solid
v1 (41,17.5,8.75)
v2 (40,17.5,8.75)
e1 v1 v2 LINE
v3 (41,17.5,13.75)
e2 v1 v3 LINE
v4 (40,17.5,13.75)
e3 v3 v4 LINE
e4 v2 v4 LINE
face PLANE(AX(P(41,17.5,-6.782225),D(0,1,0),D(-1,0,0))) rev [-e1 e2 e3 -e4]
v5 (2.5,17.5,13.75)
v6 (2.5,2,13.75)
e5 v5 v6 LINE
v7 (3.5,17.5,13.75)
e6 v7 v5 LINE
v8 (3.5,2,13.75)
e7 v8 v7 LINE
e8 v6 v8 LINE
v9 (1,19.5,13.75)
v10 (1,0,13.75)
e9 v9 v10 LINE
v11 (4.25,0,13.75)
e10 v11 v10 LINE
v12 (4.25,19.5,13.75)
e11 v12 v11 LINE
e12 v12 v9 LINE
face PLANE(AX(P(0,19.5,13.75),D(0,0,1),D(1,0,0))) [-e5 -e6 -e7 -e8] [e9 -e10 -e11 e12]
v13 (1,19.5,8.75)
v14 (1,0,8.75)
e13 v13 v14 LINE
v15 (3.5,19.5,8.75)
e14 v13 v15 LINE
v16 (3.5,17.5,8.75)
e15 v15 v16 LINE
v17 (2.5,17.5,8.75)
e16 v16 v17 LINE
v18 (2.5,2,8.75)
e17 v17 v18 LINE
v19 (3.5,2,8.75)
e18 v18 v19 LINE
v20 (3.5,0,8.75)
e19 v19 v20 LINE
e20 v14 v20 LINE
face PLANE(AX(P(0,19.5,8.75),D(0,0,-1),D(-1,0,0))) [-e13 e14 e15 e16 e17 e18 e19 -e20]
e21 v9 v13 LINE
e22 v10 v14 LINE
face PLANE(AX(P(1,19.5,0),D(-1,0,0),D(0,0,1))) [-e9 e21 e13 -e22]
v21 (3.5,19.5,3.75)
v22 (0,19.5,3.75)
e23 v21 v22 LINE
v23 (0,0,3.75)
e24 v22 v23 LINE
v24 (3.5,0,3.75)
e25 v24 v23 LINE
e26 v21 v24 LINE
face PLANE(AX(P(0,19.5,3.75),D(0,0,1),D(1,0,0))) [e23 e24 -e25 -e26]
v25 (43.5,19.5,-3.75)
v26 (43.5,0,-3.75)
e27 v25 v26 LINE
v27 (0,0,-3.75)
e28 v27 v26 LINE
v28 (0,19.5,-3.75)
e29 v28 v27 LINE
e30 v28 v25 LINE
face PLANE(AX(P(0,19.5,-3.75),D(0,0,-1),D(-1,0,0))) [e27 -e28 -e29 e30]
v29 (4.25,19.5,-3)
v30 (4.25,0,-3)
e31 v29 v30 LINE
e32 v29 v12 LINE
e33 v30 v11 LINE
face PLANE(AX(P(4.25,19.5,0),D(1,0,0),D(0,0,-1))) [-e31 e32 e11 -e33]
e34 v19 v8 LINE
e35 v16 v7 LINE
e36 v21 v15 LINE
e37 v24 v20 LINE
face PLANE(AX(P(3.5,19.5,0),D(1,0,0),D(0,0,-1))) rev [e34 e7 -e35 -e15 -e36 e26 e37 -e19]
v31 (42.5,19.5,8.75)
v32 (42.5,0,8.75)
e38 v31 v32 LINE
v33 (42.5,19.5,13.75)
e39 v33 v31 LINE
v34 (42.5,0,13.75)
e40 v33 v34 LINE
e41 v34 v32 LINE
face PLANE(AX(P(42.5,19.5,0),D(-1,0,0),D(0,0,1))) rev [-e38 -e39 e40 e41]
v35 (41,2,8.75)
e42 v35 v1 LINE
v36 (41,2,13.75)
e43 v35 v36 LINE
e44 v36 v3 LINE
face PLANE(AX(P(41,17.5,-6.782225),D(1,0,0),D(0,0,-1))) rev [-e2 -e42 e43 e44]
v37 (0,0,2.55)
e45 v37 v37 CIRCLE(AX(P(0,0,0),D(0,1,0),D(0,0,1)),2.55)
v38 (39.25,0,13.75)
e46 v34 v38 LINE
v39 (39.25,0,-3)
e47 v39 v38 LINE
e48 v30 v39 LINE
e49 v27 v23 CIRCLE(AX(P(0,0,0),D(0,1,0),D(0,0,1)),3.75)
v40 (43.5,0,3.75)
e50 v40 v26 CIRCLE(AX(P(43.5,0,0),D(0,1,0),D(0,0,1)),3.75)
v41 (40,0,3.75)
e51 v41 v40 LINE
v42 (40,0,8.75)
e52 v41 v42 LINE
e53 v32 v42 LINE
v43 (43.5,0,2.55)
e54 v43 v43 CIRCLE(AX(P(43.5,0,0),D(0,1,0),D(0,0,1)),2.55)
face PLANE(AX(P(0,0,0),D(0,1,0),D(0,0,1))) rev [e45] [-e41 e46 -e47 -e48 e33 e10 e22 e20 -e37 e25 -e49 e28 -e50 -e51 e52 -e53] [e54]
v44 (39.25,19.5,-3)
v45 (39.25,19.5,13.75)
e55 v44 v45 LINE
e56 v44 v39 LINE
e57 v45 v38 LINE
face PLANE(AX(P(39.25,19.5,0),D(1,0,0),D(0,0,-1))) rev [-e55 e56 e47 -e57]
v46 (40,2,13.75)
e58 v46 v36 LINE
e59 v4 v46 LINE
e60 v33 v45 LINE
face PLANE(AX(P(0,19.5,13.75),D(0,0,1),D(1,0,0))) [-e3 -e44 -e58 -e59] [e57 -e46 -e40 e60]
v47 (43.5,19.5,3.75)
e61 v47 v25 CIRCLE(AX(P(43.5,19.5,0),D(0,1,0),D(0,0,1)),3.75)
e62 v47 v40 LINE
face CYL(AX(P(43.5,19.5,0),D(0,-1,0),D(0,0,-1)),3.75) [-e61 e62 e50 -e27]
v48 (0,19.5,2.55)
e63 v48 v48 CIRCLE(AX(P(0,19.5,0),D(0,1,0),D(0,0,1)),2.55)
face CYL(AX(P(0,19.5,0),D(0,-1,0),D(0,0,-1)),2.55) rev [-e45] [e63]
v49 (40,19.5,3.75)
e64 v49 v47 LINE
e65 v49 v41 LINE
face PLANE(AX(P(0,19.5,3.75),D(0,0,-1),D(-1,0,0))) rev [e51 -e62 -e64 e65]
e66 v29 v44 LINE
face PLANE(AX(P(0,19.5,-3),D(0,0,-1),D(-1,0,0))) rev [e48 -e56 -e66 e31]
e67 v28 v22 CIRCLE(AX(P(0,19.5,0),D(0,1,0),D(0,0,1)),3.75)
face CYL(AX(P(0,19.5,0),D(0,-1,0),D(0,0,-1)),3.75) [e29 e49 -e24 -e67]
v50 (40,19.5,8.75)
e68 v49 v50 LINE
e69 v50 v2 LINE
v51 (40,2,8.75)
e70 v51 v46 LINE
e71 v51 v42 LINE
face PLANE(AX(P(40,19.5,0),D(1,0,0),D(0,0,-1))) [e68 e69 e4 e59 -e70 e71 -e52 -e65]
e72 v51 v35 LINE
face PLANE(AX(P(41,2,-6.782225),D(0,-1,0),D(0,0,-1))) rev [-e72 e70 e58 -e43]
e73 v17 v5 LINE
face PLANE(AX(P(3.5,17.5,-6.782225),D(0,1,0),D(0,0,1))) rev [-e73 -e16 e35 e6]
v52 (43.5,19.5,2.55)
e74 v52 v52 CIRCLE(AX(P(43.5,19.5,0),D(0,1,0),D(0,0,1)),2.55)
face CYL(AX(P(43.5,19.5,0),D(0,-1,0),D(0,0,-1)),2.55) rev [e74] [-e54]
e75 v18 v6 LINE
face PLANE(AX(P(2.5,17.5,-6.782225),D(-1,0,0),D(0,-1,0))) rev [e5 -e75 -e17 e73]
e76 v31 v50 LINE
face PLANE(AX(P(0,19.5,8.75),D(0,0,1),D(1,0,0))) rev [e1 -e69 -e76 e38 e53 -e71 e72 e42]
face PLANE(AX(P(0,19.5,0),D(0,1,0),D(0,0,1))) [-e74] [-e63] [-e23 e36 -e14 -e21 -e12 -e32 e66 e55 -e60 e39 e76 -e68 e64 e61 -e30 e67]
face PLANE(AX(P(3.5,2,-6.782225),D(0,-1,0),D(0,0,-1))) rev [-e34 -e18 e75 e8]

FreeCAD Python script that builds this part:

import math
import FreeCAD as App
import Part
import Sketcher


def add_polygon(sketch, points):
    """Adds a closed chain of lines whose ends are joined by coincident constraints."""
    first, n = sketch.GeometryCount, len(points)
    for a, b in zip(points, points[1:] + points[:1]):
        sketch.addGeometry(Part.LineSegment(App.Vector(*a, 0), App.Vector(*b, 0)), False)
    for i in range(n):
        sketch.addConstraint(Sketcher.Constraint("Coincident", first + i, 2, first + (i + 1) % n, 1))

doc = App.newDocument("Part")
body = doc.addObject("PartDesign::Body", "Body")

sketch1 = body.newObject("Sketcher::SketchObject", "Sketch")
sketch1.AttachmentSupport = (doc.getObject("XZ_Plane"), [""])
sketch1.MapMode = "FlatFace"
sketch1.addGeometry([
    Part.ArcOfCircle(Part.Circle(App.Vector(0, 0, 0), App.Vector(0, 0, 1), 3.8), math.radians(90), math.radians(270)),
    Part.LineSegment(App.Vector(0, 3.8, 0), App.Vector(3.5, 3.8, 0)),
    Part.LineSegment(App.Vector(3.5, 3.8, 0), App.Vector(3.5, 8.8, 0)),
    Part.LineSegment(App.Vector(3.5, 8.8, 0), App.Vector(1, 8.8, 0)),
    Part.LineSegment(App.Vector(1, 8.8, 0), App.Vector(1, 13.8, 0)),
    Part.LineSegment(App.Vector(1, 13.8, 0), App.Vector(4.2, 13.8, 0)),
    Part.LineSegment(App.Vector(4.2, 13.8, 0), App.Vector(4.2, -3, 0)),
    Part.LineSegment(App.Vector(4.2, -3, 0), App.Vector(39.2, -3, 0)),
    Part.LineSegment(App.Vector(39.2, -3, 0), App.Vector(39.2, 13.8, 0)),
    Part.LineSegment(App.Vector(39.2, 13.8, 0), App.Vector(42.5, 13.8, 0)),
    Part.LineSegment(App.Vector(42.5, 13.8, 0), App.Vector(42.5, 8.8, 0)),
    Part.LineSegment(App.Vector(42.5, 8.8, 0), App.Vector(40, 8.8, 0)),
    Part.LineSegment(App.Vector(40, 8.8, 0), App.Vector(40, 3.8, 0)),
    Part.LineSegment(App.Vector(40, 3.8, 0), App.Vector(43.5, 3.8, 0)),
    Part.ArcOfCircle(Part.Circle(App.Vector(43.5, 0, 0), App.Vector(0, 0, 1), 3.8), math.radians(-90), math.radians(90)),
    Part.LineSegment(App.Vector(43.5, -3.8, 0), App.Vector(0, -3.8, 0)),
    Part.Circle(App.Vector(0, 0, 0), App.Vector(0, 0, 1), 2.5),
    Part.Circle(App.Vector(43.5, 0, 0), App.Vector(0, 0, 1), 2.5),
], False)
sketch1.addConstraint([
    Sketcher.Constraint("Tangent", 0, 1, 1, 1),
    Sketcher.Constraint("Coincident", 1, 2, 2, 1),
    Sketcher.Constraint("Coincident", 2, 2, 3, 1),
    Sketcher.Constraint("Coincident", 3, 2, 4, 1),
    Sketcher.Constraint("Coincident", 4, 2, 5, 1),
    Sketcher.Constraint("Coincident", 5, 2, 6, 1),
    Sketcher.Constraint("Coincident", 6, 2, 7, 1),
    Sketcher.Constraint("Coincident", 7, 2, 8, 1),
    Sketcher.Constraint("Coincident", 8, 2, 9, 1),
    Sketcher.Constraint("Coincident", 9, 2, 10, 1),
    Sketcher.Constraint("Coincident", 10, 2, 11, 1),
    Sketcher.Constraint("Coincident", 11, 2, 12, 1),
    Sketcher.Constraint("Coincident", 12, 2, 13, 1),
    Sketcher.Constraint("Tangent", 13, 2, 14, 2),
    Sketcher.Constraint("Tangent", 14, 1, 15, 1),
    Sketcher.Constraint("Tangent", 15, 2, 0, 2),
    Sketcher.Constraint("Horizontal", 1),
    Sketcher.Constraint("Vertical", 2),
    Sketcher.Constraint("Horizontal", 3),
    Sketcher.Constraint("Vertical", 4),
    Sketcher.Constraint("Horizontal", 5),
    Sketcher.Constraint("Vertical", 6),
    Sketcher.Constraint("Horizontal", 7),
    Sketcher.Constraint("Vertical", 8),
    Sketcher.Constraint("Horizontal", 9),
    Sketcher.Constraint("Vertical", 10),
    Sketcher.Constraint("Horizontal", 11),
    Sketcher.Constraint("Vertical", 12),
    Sketcher.Constraint("Horizontal", 13),
    Sketcher.Constraint("Horizontal", 15),
    Sketcher.Constraint("Coincident", 0, 3, -1, 1),
    Sketcher.Constraint("Coincident", 16, 3, -1, 1),
    Sketcher.Constraint("Coincident", 17, 3, 14, 3),
    Sketcher.Constraint("Equal", 0, 14),
    Sketcher.Constraint("Equal", 16, 17),
    Sketcher.Constraint("Horizontal", 5, 2, 8, 2),
    Sketcher.Constraint("Horizontal", 3, 2, 10, 2),
    Sketcher.Constraint("Equal", 5, 9),
    Sketcher.Constraint("Equal", 3, 11),
    Sketcher.Constraint("Equal", 1, 13),
    Sketcher.Constraint("Equal", 2, 4),
    Sketcher.Constraint("Diameter", 16, 5.1),
    Sketcher.Constraint("DistanceX", 7, 1, 7, 2, 35.0),
    Sketcher.Constraint("DistanceY", 2, 1, 2, 2, 5.0),
    Sketcher.Constraint("Radius", 0, 3.75),
    Sketcher.Constraint("DistanceX", 1, 1, 1, 2, 3.5),
    Sketcher.Constraint("DistanceX", 3, 2, 3, 1, 2.5),
    Sketcher.Constraint("DistanceX", 15, 2, 15, 1, 43.5),
    Sketcher.Constraint("DistanceY", 6, 2, -1, 1, 3.0),
])
pad1 = body.newObject("PartDesign::Pad", "Pad")
pad1.Profile = sketch1
pad1.Length = 19.5
pad1.Reversed = True

sketch2 = body.newObject("Sketcher::SketchObject", "Sketch001")
sketch2.AttachmentSupport = (doc.getObject("XY_Plane"), [""])
sketch2.MapMode = "FlatFace"
sketch2.AttachmentOffset = App.Placement(App.Vector(0, 0, 13.75), App.Rotation())
add_polygon(sketch2, [(2.5, 17.5), (2.5, 2), (3.5, 2), (3.5, 17.5)])
add_polygon(sketch2, [(40, 17.5), (40, 2), (41, 2), (41, 17.5)])
sketch2.addConstraint([
    Sketcher.Constraint("Vertical", 0),
    Sketcher.Constraint("Horizontal", 1),
    Sketcher.Constraint("Vertical", 2),
    Sketcher.Constraint("Horizontal", 3),
    Sketcher.Constraint("Vertical", 4),
    Sketcher.Constraint("Horizontal", 5),
    Sketcher.Constraint("Vertical", 6),
    Sketcher.Constraint("Horizontal", 7),
    Sketcher.Constraint("Horizontal", 1, 2, 4, 2),
    Sketcher.Constraint("Horizontal", 3, 2, 6, 2),
    Sketcher.Constraint("Equal", 3, 5),
    Sketcher.Constraint("DistanceX", 1, 1, 1, 2, 1.0),
    Sketcher.Constraint("DistanceY", 0, 2, 0, 1, 15.5),
    Sketcher.Constraint("DistanceY", -1, 1, 0, 2, 2.0),
    Sketcher.Constraint("DistanceX", -1, 1, 4, 2, 40.0),
    Sketcher.Constraint("DistanceX", -1, 1, 0, 2, 2.5),
])
pocket1 = body.newObject("PartDesign::Pocket", "Pocket")
pocket1.Profile = sketch2
pocket1.Length = 5

doc.recompute()
